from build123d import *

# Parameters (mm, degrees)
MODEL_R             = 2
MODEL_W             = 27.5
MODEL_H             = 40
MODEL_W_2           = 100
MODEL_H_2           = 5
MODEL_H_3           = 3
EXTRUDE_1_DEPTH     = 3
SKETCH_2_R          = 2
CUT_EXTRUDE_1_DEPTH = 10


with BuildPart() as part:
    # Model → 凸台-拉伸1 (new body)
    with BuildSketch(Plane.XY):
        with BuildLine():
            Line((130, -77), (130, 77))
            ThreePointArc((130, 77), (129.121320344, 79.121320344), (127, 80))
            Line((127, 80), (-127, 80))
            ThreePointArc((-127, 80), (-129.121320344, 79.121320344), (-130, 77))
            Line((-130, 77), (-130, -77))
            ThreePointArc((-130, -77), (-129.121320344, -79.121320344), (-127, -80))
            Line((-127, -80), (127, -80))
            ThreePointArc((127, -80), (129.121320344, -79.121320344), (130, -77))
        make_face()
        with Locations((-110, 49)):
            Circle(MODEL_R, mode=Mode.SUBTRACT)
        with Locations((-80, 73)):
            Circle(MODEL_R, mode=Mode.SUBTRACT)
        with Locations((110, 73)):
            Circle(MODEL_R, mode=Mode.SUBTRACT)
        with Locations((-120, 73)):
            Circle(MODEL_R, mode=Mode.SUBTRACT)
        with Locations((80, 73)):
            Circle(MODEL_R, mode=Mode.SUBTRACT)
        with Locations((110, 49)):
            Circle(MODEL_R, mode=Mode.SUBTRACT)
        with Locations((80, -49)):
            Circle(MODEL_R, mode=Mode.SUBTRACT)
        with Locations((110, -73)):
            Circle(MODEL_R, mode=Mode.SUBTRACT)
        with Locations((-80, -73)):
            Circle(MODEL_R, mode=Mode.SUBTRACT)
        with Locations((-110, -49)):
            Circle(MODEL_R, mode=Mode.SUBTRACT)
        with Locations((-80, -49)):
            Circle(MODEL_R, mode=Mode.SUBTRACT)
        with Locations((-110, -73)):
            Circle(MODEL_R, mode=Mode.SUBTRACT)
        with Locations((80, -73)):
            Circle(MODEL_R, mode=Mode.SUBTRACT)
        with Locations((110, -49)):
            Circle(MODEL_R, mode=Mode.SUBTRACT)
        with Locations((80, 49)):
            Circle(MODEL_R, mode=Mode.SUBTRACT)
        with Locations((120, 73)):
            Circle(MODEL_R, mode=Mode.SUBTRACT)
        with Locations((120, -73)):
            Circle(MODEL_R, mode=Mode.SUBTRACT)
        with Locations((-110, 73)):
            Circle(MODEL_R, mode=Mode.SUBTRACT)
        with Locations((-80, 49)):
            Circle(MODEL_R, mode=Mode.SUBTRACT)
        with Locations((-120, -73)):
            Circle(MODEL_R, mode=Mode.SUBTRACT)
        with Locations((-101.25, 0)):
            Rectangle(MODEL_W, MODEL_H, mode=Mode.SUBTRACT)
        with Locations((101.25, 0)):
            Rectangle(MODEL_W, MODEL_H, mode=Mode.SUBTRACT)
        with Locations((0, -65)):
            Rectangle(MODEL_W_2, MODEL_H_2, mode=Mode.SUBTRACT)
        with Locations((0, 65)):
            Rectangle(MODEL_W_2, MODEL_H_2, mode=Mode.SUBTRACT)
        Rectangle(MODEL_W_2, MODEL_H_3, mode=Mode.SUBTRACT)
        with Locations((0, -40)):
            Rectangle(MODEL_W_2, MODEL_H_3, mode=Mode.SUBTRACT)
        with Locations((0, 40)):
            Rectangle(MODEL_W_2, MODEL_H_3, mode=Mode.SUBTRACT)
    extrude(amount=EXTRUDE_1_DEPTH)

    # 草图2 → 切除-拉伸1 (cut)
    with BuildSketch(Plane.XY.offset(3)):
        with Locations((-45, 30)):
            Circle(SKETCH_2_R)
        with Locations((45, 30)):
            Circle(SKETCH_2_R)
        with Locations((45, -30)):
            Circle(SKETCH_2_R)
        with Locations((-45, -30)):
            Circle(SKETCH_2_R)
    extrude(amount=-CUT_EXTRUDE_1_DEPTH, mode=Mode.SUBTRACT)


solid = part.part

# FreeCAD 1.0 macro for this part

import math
import FreeCAD as App
import Part
import Sketcher

V = App.Vector
Q = App.Units.Quantity


def add_polygon(sketch, points):
    """Adds a closed chain of lines whose ends are joined by coincident constraints."""
    first, n = sketch.GeometryCount, len(points)
    for a, b in zip(points, points[1:] + points[:1]):
        sketch.addGeometry(Part.LineSegment(App.Vector(*a, 0), App.Vector(*b, 0)), False)
    for i in range(n):
        sketch.addConstraint(Sketcher.Constraint("Coincident", first + i, 2, first + (i + 1) % n, 1))

doc = App.newDocument("Part")
body = doc.addObject("PartDesign::Body", "Body")

sketch1 = body.newObject("Sketcher::SketchObject", "Sketch")
sketch1.AttachmentSupport = (doc.getObject("XY_Plane"), [""])
sketch1.MapMode = "FlatFace"
sketch1.addGeometry(Part.LineSegment(V(130, -77, 0), V(130, 77, 0)), False)
sketch1.addGeometry(Part.ArcOfCircle(Part.Circle(V(127, 77, 0), V(0, 0, 1), 3), math.radians(0), math.radians(90)), False)
sketch1.addGeometry(Part.LineSegment(V(127, 80, 0), V(-127, 80, 0)), False)
sketch1.addGeometry(Part.ArcOfCircle(Part.Circle(V(-127, 77, 0), V(0, 0, 1), 3), math.radians(90), math.radians(180)), False)
sketch1.addGeometry(Part.LineSegment(V(-130, 77, 0), V(-130, -77, 0)), False)
sketch1.addGeometry(Part.ArcOfCircle(Part.Circle(V(-127, -77, 0), V(0, 0, 1), 3), math.radians(180), math.radians(270)), False)
sketch1.addGeometry(Part.LineSegment(V(-127, -80, 0), V(127, -80, 0)), False)
sketch1.addGeometry(Part.ArcOfCircle(Part.Circle(V(127, -77, 0), V(0, 0, 1), 3), math.radians(-90), math.radians(0)), False)
sketch1.addGeometry(Part.Circle(V(-120, -73, 0), V(0, 0, 1), 2), False)
sketch1.addGeometry(Part.Circle(V(-110, -73, 0), V(0, 0, 1), 2), False)
sketch1.addGeometry(Part.Circle(V(-80, -73, 0), V(0, 0, 1), 2), False)
sketch1.addGeometry(Part.Circle(V(-110, -49, 0), V(0, 0, 1), 2), False)
sketch1.addGeometry(Part.Circle(V(-80, -49, 0), V(0, 0, 1), 2), False)
add_polygon(sketch1, [(50, -67.5), (-50, -67.5), (-50, -62.5), (50, -62.5)])
add_polygon(sketch1, [(50, -41.5), (-50, -41.5), (-50, -38.5), (50, -38.5)])
sketch1.addGeometry(Part.Circle(V(80, -73, 0), V(0, 0, 1), 2), False)
sketch1.addGeometry(Part.Circle(V(110, -73, 0), V(0, 0, 1), 2), False)
sketch1.addGeometry(Part.Circle(V(120, -73, 0), V(0, 0, 1), 2), False)
sketch1.addGeometry(Part.Circle(V(80, -49, 0), V(0, 0, 1), 2), False)
sketch1.addGeometry(Part.Circle(V(110, -49, 0), V(0, 0, 1), 2), False)
add_polygon(sketch1, [(-87.5, -20), (-115, -20), (-115, 20), (-87.5, 20)])
sketch1.addGeometry(Part.Circle(V(-110, 49, 0), V(0, 0, 1), 2), False)
sketch1.addGeometry(Part.Circle(V(-80, 49, 0), V(0, 0, 1), 2), False)
sketch1.addGeometry(Part.Circle(V(-120, 73, 0), V(0, 0, 1), 2), False)
sketch1.addGeometry(Part.Circle(V(-110, 73, 0), V(0, 0, 1), 2), False)
sketch1.addGeometry(Part.Circle(V(-80, 73, 0), V(0, 0, 1), 2), False)
add_polygon(sketch1, [(50, -1.5), (-50, -1.5), (-50, 1.5), (50, 1.5)])
add_polygon(sketch1, [(115, -20), (87.5, -20), (87.5, 20), (115, 20)])
add_polygon(sketch1, [(50, 38.5), (-50, 38.5), (-50, 41.5), (50, 41.5)])
add_polygon(sketch1, [(50, 62.5), (-50, 62.5), (-50, 67.5), (50, 67.5)])
sketch1.addGeometry(Part.Circle(V(80, 49, 0), V(0, 0, 1), 2), False)
sketch1.addGeometry(Part.Circle(V(110, 49, 0), V(0, 0, 1), 2), False)
sketch1.addGeometry(Part.Circle(V(80, 73, 0), V(0, 0, 1), 2), False)
sketch1.addGeometry(Part.Circle(V(110, 73, 0), V(0, 0, 1), 2), False)
sketch1.addGeometry(Part.Circle(V(120, 73, 0), V(0, 0, 1), 2), False)
sketch1.addConstraint([
    Sketcher.Constraint("Tangent", 0, 2, 1, 1),
    Sketcher.Constraint("Tangent", 1, 2, 2, 1),
    Sketcher.Constraint("Tangent", 2, 2, 3, 1),
    Sketcher.Constraint("Tangent", 3, 2, 4, 1),
    Sketcher.Constraint("Tangent", 4, 2, 5, 1),
    Sketcher.Constraint("Tangent", 5, 2, 6, 1),
    Sketcher.Constraint("Tangent", 6, 2, 7, 1),
    Sketcher.Constraint("Tangent", 7, 2, 0, 1),
    Sketcher.Constraint("Vertical", 0),
    Sketcher.Constraint("Horizontal", 2),
    Sketcher.Constraint("Vertical", 4),
    Sketcher.Constraint("Horizontal", 6),
    Sketcher.Constraint("Horizontal", 13),
    Sketcher.Constraint("Vertical", 14),
    Sketcher.Constraint("Horizontal", 15),
    Sketcher.Constraint("Vertical", 16),
    Sketcher.Constraint("Horizontal", 17),
    Sketcher.Constraint("Vertical", 18),
    Sketcher.Constraint("Horizontal", 19),
    Sketcher.Constraint("Vertical", 20),
    Sketcher.Constraint("Horizontal", 26),
    Sketcher.Constraint("Vertical", 27),
    Sketcher.Constraint("Horizontal", 28),
    Sketcher.Constraint("Vertical", 29),
    Sketcher.Constraint("Horizontal", 35),
    Sketcher.Constraint("Vertical", 36),
    Sketcher.Constraint("Horizontal", 37),
    Sketcher.Constraint("Vertical", 38),
    Sketcher.Constraint("Horizontal", 39),
    Sketcher.Constraint("Vertical", 40),
    Sketcher.Constraint("Horizontal", 41),
    Sketcher.Constraint("Vertical", 42),
    Sketcher.Constraint("Horizontal", 43),
    Sketcher.Constraint("Vertical", 44),
    Sketcher.Constraint("Horizontal", 45),
    Sketcher.Constraint("Vertical", 46),
    Sketcher.Constraint("Horizontal", 47),
    Sketcher.Constraint("Vertical", 48),
    Sketcher.Constraint("Horizontal", 49),
    Sketcher.Constraint("Vertical", 50),
    Sketcher.Constraint("Equal", 1, 3),
    Sketcher.Constraint("Equal", 3, 5),
    Sketcher.Constraint("Equal", 5, 7),
    Sketcher.Constraint("Equal", 8, 9),
    Sketcher.Constraint("Equal", 9, 10),
    Sketcher.Constraint("Equal", 10, 11),
    Sketcher.Constraint("Equal", 11, 12),
    Sketcher.Constraint("Equal", 12, 21),
    Sketcher.Constraint("Equal", 21, 22),
    Sketcher.Constraint("Equal", 22, 23),
    Sketcher.Constraint("Equal", 23, 24),
    Sketcher.Constraint("Equal", 24, 25),
    Sketcher.Constraint("Equal", 25, 30),
    Sketcher.Constraint("Equal", 30, 31),
    Sketcher.Constraint("Equal", 31, 32),
    Sketcher.Constraint("Equal", 32, 33),
    Sketcher.Constraint("Equal", 33, 34),
    Sketcher.Constraint("Equal", 34, 51),
    Sketcher.Constraint("Equal", 51, 52),
    Sketcher.Constraint("Equal", 52, 53),
    Sketcher.Constraint("Equal", 53, 54),
    Sketcher.Constraint("Equal", 54, 55),
    Sketcher.Constraint("Symmetric", 1, 3, 5, 3, -1, 1),
    Sketcher.Constraint("Symmetric", 25, 3, 30, 3, -1, 1),
    Sketcher.Constraint("Symmetric", 24, 3, 31, 3, -1, 1),
    Sketcher.Constraint("Symmetric", 23, 3, 32, 3, -1, 1),
    Sketcher.Constraint("Symmetric", 22, 3, 33, 3, -1, 1),
    Sketcher.Constraint("Symmetric", 21, 3, 34, 3, -1, 1),
    Sketcher.Constraint("Symmetric", 12, 3, 51, 3, -1, 1),
    Sketcher.Constraint("Symmetric", 11, 3, 52, 3, -1, 1),
    Sketcher.Constraint("Symmetric", 10, 3, 53, 3, -1, 1),
    Sketcher.Constraint("Symmetric", 9, 3, 54, 3, -1, 1),
    Sketcher.Constraint("Symmetric", 8, 3, 55, 3, -1, 1),
    Sketcher.Constraint("Symmetric", 35, 2, 37, 2, -1, 1),
    Sketcher.Constraint("Symmetric", 28, 2, 39, 2, -1, 1),
    Sketcher.Constraint("Symmetric", 26, 2, 41, 2, -1, 1),
    Sketcher.Constraint("Symmetric", 19, 2, 43, 2, -1, 1),
    Sketcher.Constraint("Symmetric", 17, 2, 45, 2, -1, 1),
    Sketcher.Constraint("Symmetric", 15, 2, 47, 2, -1, 1),
    Sketcher.Constraint("Symmetric", 13, 2, 49, 2, -1, 1),
    Sketcher.Constraint("Symmetric", 10, 3, 21, 3, -2),
    Sketcher.Constraint("Symmetric", 9, 3, 22, 3, -2),
    Sketcher.Constraint("Symmetric", 8, 3, 23, 3, -2),
    Sketcher.Constraint("Symmetric", 12, 3, 24, 3, -2),
    Sketcher.Constraint("Symmetric", 11, 3, 25, 3, -2),
    Sketcher.Constraint("Horizontal", 8, 3, 9, 3),
    Sketcher.Constraint("Horizontal", 9, 3, 10, 3),
    Sketcher.Constraint("Horizontal", 11, 3, 12, 3),
    Sketcher.Constraint("Horizontal", 29, 2, 39, 2),
    Sketcher.Constraint("Vertical", 9, 3, 11, 3),
    Sketcher.Constraint("Vertical", 10, 3, 12, 3),
    Sketcher.Constraint("Vertical", 14, 2, 17, 2),
    Sketcher.Constraint("Vertical", 16, 2, 19, 2),
    Sketcher.Constraint("Vertical", 18, 2, 35, 2),
    Sketcher.Constraint("Vertical", 20, 2, 37, 2),
    Sketcher.Constraint("Equal", 20, 36),
    Sketcher.Constraint("Diameter", 8, Q("4 mm")),
    Sketcher.Constraint("Radius", 1, Q("3 mm")),
    Sketcher.Constraint("DistanceX", 2, 2, 2, 1, Q("254 mm")),
    Sketcher.Constraint("DistanceX", 13, 2, 13, 1, Q("100 mm")),
    Sketcher.Constraint("DistanceY", 0, 1, 0, 2, Q("154 mm")),
    Sketcher.Constraint("DistanceY", 14, 1, 14, 2, Q("5 mm")),
    Sketcher.Constraint("DistanceY", 18, 1, 18, 2, Q("3 mm")),
    Sketcher.Constraint("DistanceY", 27, 1, 27, 2, Q("40 mm")),
    Sketcher.Constraint("DistanceX", 26, 2, 26, 1, Q("27.5 mm")),
    Sketcher.Constraint("DistanceX", 8, 3, -1, 1, Q("120 mm")),
    Sketcher.Constraint("DistanceY", 8, 3, -1, 1, Q("73 mm")),
    Sketcher.Constraint("DistanceX", 9, 3, -1, 1, Q("110 mm")),
    Sketcher.Constraint("DistanceX", 10, 3, -1, 1, Q("80 mm")),
    Sketcher.Constraint("DistanceY", 11, 3, -1, 1, Q("49 mm")),
    Sketcher.Constraint("DistanceX", 26, 2, -1, 1, Q("115 mm")),
    Sketcher.Constraint("DistanceY", 14, 2, 17, 2, Q("21 mm")),
    Sketcher.Constraint("DistanceY", 18, 2, 35, 2, Q("37 mm")),
])
pad1 = body.newObject("PartDesign::Pad", "Pad")
pad1.Profile = sketch1
pad1.Length = 3

sketch2 = body.newObject("Sketcher::SketchObject", "Sketch001")
sketch2.AttachmentSupport = (doc.getObject("XY_Plane"), [""])
sketch2.MapMode = "FlatFace"
sketch2.AttachmentOffset = App.Placement(V(0, 0, 3), App.Rotation())
sketch2.addGeometry([
    Part.Circle(V(-45, 30, 0), V(0, 0, 1), 2),
    Part.Circle(V(45, 30, 0), V(0, 0, 1), 2),
    Part.Circle(V(45, -30, 0), V(0, 0, 1), 2),
    Part.Circle(V(-45, -30, 0), V(0, 0, 1), 2),
], False)
sketch2.addConstraint([
    Sketcher.Constraint("Equal", 0, 1),
    Sketcher.Constraint("Equal", 1, 2),
    Sketcher.Constraint("Equal", 2, 3),
    Sketcher.Constraint("Symmetric", 0, 3, 2, 3, -1, 1),
    Sketcher.Constraint("Symmetric", 1, 3, 3, 3, -1, 1),
    Sketcher.Constraint("Symmetric", 0, 3, 1, 3, -2),
    Sketcher.Constraint("Diameter", 0, Q("4 mm")),
    Sketcher.Constraint("DistanceX", 0, 3, -1, 1, Q("45 mm")),
    Sketcher.Constraint("DistanceY", -1, 1, 0, 3, Q("30 mm")),
])
pocket1 = body.newObject("PartDesign::Pocket", "Pocket")
pocket1.Profile = sketch2
pocket1.Length = 10

doc.recompute()
